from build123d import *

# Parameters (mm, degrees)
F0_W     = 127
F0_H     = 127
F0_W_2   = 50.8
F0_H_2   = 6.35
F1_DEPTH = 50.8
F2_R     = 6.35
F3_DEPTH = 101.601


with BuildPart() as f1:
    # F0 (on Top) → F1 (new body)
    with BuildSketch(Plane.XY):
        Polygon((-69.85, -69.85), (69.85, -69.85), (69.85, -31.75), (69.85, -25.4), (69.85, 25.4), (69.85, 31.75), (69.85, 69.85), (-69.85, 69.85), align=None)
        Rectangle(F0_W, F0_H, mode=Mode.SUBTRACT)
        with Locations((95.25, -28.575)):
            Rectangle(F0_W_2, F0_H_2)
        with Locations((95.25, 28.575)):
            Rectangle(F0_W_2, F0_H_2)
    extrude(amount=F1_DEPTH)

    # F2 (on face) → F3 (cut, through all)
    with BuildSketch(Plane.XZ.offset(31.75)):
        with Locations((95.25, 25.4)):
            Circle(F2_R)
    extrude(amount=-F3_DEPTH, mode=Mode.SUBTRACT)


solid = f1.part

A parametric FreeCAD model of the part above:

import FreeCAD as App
import Part
import Sketcher

V = App.Vector
Q = App.Units.Quantity


def add_polygon(sketch, points):
    """Adds a closed chain of lines whose ends are joined by coincident constraints."""
    first, n = sketch.GeometryCount, len(points)
    for a, b in zip(points, points[1:] + points[:1]):
        sketch.addGeometry(Part.LineSegment(App.Vector(*a, 0), App.Vector(*b, 0)), False)
    for i in range(n):
        sketch.addConstraint(Sketcher.Constraint("Coincident", first + i, 2, first + (i + 1) % n, 1))

doc = App.newDocument("Part")
body = doc.addObject("PartDesign::Body", "Body")

sketch1 = body.newObject("Sketcher::SketchObject", "Sketch")
sketch1.AttachmentSupport = (doc.getObject("XY_Plane"), [""])
sketch1.MapMode = "FlatFace"
add_polygon(sketch1, [(-69.85, -69.85), (69.85, -69.85), (69.85, -31.75), (120.65, -31.75), (120.65, -25.4), (69.85, -25.4), (69.85, 25.4), (120.65, 25.4), (120.65, 31.75), (69.85, 31.75), (69.85, 69.85), (-69.85, 69.85)])
add_polygon(sketch1, [(63.5, -63.5), (-63.5, -63.5), (-63.5, 63.5), (63.5, 63.5)])
sketch1.addConstraint([
    Sketcher.Constraint("Horizontal", 0),
    Sketcher.Constraint("Vertical", 1),
    Sketcher.Constraint("Horizontal", 2),
    Sketcher.Constraint("Vertical", 3),
    Sketcher.Constraint("Horizontal", 4),
    Sketcher.Constraint("Vertical", 5),
    Sketcher.Constraint("Horizontal", 6),
    Sketcher.Constraint("Vertical", 7),
    Sketcher.Constraint("Horizontal", 8),
    Sketcher.Constraint("Vertical", 9),
    Sketcher.Constraint("Horizontal", 10),
    Sketcher.Constraint("Vertical", 11),
    Sketcher.Constraint("Horizontal", 12),
    Sketcher.Constraint("Vertical", 13),
    Sketcher.Constraint("Horizontal", 14),
    Sketcher.Constraint("Vertical", 15),
    Sketcher.Constraint("Symmetric", 0, 2, 10, 2, -1, 1),
    Sketcher.Constraint("Symmetric", 12, 2, 14, 2, -1, 1),
    Sketcher.Constraint("Symmetric", 3, 2, 6, 2, -1),
    Sketcher.Constraint("Symmetric", 1, 2, 8, 2, -1),
    Sketcher.Constraint("Vertical", 1, 2, 4, 2),
    Sketcher.Constraint("Equal", 8, 5),
    Sketcher.Constraint("Equal", 10, 11),
    Sketcher.Constraint("Equal", 14, 13),
    Sketcher.Constraint("DistanceX", 2, 1, 2, 2, Q("2 in")),
    Sketcher.Constraint("DistanceX", 12, 2, 12, 1, Q("5 in")),
    Sketcher.Constraint("DistanceX", 0, 1, 0, 2, Q("5.5 in")),
    Sketcher.Constraint("DistanceY", 1, 1, 1, 2, Q("1.5 in")),
])
pad1 = body.newObject("PartDesign::Pad", "Pad")
pad1.Profile = sketch1
pad1.Length = Q("2 in")

sketch2 = body.newObject("Sketcher::SketchObject", "Sketch001")
sketch2.AttachmentSupport = (doc.getObject("XZ_Plane"), [""])
sketch2.MapMode = "FlatFace"
sketch2.AttachmentOffset = App.Placement(V(0, 0, 1.25 * 25.4), App.Rotation())
sketch2.addGeometry(Part.Circle(V(95.25, 25.4, 0), V(0, 0, 1), 6.35), False)
sketch2.addConstraint([
    Sketcher.Constraint("Diameter", 0, Q("0.5 in")),
    Sketcher.Constraint("DistanceY", -1, 1, 0, 3, Q("1 in")),
    Sketcher.Constraint("DistanceX", -1, 1, 0, 3, Q("3.75 in")),
])
pocket1 = body.newObject("PartDesign::Pocket", "Pocket")
pocket1.Profile = sketch2
pocket1.Type = "ThroughAll"

doc.recompute()
